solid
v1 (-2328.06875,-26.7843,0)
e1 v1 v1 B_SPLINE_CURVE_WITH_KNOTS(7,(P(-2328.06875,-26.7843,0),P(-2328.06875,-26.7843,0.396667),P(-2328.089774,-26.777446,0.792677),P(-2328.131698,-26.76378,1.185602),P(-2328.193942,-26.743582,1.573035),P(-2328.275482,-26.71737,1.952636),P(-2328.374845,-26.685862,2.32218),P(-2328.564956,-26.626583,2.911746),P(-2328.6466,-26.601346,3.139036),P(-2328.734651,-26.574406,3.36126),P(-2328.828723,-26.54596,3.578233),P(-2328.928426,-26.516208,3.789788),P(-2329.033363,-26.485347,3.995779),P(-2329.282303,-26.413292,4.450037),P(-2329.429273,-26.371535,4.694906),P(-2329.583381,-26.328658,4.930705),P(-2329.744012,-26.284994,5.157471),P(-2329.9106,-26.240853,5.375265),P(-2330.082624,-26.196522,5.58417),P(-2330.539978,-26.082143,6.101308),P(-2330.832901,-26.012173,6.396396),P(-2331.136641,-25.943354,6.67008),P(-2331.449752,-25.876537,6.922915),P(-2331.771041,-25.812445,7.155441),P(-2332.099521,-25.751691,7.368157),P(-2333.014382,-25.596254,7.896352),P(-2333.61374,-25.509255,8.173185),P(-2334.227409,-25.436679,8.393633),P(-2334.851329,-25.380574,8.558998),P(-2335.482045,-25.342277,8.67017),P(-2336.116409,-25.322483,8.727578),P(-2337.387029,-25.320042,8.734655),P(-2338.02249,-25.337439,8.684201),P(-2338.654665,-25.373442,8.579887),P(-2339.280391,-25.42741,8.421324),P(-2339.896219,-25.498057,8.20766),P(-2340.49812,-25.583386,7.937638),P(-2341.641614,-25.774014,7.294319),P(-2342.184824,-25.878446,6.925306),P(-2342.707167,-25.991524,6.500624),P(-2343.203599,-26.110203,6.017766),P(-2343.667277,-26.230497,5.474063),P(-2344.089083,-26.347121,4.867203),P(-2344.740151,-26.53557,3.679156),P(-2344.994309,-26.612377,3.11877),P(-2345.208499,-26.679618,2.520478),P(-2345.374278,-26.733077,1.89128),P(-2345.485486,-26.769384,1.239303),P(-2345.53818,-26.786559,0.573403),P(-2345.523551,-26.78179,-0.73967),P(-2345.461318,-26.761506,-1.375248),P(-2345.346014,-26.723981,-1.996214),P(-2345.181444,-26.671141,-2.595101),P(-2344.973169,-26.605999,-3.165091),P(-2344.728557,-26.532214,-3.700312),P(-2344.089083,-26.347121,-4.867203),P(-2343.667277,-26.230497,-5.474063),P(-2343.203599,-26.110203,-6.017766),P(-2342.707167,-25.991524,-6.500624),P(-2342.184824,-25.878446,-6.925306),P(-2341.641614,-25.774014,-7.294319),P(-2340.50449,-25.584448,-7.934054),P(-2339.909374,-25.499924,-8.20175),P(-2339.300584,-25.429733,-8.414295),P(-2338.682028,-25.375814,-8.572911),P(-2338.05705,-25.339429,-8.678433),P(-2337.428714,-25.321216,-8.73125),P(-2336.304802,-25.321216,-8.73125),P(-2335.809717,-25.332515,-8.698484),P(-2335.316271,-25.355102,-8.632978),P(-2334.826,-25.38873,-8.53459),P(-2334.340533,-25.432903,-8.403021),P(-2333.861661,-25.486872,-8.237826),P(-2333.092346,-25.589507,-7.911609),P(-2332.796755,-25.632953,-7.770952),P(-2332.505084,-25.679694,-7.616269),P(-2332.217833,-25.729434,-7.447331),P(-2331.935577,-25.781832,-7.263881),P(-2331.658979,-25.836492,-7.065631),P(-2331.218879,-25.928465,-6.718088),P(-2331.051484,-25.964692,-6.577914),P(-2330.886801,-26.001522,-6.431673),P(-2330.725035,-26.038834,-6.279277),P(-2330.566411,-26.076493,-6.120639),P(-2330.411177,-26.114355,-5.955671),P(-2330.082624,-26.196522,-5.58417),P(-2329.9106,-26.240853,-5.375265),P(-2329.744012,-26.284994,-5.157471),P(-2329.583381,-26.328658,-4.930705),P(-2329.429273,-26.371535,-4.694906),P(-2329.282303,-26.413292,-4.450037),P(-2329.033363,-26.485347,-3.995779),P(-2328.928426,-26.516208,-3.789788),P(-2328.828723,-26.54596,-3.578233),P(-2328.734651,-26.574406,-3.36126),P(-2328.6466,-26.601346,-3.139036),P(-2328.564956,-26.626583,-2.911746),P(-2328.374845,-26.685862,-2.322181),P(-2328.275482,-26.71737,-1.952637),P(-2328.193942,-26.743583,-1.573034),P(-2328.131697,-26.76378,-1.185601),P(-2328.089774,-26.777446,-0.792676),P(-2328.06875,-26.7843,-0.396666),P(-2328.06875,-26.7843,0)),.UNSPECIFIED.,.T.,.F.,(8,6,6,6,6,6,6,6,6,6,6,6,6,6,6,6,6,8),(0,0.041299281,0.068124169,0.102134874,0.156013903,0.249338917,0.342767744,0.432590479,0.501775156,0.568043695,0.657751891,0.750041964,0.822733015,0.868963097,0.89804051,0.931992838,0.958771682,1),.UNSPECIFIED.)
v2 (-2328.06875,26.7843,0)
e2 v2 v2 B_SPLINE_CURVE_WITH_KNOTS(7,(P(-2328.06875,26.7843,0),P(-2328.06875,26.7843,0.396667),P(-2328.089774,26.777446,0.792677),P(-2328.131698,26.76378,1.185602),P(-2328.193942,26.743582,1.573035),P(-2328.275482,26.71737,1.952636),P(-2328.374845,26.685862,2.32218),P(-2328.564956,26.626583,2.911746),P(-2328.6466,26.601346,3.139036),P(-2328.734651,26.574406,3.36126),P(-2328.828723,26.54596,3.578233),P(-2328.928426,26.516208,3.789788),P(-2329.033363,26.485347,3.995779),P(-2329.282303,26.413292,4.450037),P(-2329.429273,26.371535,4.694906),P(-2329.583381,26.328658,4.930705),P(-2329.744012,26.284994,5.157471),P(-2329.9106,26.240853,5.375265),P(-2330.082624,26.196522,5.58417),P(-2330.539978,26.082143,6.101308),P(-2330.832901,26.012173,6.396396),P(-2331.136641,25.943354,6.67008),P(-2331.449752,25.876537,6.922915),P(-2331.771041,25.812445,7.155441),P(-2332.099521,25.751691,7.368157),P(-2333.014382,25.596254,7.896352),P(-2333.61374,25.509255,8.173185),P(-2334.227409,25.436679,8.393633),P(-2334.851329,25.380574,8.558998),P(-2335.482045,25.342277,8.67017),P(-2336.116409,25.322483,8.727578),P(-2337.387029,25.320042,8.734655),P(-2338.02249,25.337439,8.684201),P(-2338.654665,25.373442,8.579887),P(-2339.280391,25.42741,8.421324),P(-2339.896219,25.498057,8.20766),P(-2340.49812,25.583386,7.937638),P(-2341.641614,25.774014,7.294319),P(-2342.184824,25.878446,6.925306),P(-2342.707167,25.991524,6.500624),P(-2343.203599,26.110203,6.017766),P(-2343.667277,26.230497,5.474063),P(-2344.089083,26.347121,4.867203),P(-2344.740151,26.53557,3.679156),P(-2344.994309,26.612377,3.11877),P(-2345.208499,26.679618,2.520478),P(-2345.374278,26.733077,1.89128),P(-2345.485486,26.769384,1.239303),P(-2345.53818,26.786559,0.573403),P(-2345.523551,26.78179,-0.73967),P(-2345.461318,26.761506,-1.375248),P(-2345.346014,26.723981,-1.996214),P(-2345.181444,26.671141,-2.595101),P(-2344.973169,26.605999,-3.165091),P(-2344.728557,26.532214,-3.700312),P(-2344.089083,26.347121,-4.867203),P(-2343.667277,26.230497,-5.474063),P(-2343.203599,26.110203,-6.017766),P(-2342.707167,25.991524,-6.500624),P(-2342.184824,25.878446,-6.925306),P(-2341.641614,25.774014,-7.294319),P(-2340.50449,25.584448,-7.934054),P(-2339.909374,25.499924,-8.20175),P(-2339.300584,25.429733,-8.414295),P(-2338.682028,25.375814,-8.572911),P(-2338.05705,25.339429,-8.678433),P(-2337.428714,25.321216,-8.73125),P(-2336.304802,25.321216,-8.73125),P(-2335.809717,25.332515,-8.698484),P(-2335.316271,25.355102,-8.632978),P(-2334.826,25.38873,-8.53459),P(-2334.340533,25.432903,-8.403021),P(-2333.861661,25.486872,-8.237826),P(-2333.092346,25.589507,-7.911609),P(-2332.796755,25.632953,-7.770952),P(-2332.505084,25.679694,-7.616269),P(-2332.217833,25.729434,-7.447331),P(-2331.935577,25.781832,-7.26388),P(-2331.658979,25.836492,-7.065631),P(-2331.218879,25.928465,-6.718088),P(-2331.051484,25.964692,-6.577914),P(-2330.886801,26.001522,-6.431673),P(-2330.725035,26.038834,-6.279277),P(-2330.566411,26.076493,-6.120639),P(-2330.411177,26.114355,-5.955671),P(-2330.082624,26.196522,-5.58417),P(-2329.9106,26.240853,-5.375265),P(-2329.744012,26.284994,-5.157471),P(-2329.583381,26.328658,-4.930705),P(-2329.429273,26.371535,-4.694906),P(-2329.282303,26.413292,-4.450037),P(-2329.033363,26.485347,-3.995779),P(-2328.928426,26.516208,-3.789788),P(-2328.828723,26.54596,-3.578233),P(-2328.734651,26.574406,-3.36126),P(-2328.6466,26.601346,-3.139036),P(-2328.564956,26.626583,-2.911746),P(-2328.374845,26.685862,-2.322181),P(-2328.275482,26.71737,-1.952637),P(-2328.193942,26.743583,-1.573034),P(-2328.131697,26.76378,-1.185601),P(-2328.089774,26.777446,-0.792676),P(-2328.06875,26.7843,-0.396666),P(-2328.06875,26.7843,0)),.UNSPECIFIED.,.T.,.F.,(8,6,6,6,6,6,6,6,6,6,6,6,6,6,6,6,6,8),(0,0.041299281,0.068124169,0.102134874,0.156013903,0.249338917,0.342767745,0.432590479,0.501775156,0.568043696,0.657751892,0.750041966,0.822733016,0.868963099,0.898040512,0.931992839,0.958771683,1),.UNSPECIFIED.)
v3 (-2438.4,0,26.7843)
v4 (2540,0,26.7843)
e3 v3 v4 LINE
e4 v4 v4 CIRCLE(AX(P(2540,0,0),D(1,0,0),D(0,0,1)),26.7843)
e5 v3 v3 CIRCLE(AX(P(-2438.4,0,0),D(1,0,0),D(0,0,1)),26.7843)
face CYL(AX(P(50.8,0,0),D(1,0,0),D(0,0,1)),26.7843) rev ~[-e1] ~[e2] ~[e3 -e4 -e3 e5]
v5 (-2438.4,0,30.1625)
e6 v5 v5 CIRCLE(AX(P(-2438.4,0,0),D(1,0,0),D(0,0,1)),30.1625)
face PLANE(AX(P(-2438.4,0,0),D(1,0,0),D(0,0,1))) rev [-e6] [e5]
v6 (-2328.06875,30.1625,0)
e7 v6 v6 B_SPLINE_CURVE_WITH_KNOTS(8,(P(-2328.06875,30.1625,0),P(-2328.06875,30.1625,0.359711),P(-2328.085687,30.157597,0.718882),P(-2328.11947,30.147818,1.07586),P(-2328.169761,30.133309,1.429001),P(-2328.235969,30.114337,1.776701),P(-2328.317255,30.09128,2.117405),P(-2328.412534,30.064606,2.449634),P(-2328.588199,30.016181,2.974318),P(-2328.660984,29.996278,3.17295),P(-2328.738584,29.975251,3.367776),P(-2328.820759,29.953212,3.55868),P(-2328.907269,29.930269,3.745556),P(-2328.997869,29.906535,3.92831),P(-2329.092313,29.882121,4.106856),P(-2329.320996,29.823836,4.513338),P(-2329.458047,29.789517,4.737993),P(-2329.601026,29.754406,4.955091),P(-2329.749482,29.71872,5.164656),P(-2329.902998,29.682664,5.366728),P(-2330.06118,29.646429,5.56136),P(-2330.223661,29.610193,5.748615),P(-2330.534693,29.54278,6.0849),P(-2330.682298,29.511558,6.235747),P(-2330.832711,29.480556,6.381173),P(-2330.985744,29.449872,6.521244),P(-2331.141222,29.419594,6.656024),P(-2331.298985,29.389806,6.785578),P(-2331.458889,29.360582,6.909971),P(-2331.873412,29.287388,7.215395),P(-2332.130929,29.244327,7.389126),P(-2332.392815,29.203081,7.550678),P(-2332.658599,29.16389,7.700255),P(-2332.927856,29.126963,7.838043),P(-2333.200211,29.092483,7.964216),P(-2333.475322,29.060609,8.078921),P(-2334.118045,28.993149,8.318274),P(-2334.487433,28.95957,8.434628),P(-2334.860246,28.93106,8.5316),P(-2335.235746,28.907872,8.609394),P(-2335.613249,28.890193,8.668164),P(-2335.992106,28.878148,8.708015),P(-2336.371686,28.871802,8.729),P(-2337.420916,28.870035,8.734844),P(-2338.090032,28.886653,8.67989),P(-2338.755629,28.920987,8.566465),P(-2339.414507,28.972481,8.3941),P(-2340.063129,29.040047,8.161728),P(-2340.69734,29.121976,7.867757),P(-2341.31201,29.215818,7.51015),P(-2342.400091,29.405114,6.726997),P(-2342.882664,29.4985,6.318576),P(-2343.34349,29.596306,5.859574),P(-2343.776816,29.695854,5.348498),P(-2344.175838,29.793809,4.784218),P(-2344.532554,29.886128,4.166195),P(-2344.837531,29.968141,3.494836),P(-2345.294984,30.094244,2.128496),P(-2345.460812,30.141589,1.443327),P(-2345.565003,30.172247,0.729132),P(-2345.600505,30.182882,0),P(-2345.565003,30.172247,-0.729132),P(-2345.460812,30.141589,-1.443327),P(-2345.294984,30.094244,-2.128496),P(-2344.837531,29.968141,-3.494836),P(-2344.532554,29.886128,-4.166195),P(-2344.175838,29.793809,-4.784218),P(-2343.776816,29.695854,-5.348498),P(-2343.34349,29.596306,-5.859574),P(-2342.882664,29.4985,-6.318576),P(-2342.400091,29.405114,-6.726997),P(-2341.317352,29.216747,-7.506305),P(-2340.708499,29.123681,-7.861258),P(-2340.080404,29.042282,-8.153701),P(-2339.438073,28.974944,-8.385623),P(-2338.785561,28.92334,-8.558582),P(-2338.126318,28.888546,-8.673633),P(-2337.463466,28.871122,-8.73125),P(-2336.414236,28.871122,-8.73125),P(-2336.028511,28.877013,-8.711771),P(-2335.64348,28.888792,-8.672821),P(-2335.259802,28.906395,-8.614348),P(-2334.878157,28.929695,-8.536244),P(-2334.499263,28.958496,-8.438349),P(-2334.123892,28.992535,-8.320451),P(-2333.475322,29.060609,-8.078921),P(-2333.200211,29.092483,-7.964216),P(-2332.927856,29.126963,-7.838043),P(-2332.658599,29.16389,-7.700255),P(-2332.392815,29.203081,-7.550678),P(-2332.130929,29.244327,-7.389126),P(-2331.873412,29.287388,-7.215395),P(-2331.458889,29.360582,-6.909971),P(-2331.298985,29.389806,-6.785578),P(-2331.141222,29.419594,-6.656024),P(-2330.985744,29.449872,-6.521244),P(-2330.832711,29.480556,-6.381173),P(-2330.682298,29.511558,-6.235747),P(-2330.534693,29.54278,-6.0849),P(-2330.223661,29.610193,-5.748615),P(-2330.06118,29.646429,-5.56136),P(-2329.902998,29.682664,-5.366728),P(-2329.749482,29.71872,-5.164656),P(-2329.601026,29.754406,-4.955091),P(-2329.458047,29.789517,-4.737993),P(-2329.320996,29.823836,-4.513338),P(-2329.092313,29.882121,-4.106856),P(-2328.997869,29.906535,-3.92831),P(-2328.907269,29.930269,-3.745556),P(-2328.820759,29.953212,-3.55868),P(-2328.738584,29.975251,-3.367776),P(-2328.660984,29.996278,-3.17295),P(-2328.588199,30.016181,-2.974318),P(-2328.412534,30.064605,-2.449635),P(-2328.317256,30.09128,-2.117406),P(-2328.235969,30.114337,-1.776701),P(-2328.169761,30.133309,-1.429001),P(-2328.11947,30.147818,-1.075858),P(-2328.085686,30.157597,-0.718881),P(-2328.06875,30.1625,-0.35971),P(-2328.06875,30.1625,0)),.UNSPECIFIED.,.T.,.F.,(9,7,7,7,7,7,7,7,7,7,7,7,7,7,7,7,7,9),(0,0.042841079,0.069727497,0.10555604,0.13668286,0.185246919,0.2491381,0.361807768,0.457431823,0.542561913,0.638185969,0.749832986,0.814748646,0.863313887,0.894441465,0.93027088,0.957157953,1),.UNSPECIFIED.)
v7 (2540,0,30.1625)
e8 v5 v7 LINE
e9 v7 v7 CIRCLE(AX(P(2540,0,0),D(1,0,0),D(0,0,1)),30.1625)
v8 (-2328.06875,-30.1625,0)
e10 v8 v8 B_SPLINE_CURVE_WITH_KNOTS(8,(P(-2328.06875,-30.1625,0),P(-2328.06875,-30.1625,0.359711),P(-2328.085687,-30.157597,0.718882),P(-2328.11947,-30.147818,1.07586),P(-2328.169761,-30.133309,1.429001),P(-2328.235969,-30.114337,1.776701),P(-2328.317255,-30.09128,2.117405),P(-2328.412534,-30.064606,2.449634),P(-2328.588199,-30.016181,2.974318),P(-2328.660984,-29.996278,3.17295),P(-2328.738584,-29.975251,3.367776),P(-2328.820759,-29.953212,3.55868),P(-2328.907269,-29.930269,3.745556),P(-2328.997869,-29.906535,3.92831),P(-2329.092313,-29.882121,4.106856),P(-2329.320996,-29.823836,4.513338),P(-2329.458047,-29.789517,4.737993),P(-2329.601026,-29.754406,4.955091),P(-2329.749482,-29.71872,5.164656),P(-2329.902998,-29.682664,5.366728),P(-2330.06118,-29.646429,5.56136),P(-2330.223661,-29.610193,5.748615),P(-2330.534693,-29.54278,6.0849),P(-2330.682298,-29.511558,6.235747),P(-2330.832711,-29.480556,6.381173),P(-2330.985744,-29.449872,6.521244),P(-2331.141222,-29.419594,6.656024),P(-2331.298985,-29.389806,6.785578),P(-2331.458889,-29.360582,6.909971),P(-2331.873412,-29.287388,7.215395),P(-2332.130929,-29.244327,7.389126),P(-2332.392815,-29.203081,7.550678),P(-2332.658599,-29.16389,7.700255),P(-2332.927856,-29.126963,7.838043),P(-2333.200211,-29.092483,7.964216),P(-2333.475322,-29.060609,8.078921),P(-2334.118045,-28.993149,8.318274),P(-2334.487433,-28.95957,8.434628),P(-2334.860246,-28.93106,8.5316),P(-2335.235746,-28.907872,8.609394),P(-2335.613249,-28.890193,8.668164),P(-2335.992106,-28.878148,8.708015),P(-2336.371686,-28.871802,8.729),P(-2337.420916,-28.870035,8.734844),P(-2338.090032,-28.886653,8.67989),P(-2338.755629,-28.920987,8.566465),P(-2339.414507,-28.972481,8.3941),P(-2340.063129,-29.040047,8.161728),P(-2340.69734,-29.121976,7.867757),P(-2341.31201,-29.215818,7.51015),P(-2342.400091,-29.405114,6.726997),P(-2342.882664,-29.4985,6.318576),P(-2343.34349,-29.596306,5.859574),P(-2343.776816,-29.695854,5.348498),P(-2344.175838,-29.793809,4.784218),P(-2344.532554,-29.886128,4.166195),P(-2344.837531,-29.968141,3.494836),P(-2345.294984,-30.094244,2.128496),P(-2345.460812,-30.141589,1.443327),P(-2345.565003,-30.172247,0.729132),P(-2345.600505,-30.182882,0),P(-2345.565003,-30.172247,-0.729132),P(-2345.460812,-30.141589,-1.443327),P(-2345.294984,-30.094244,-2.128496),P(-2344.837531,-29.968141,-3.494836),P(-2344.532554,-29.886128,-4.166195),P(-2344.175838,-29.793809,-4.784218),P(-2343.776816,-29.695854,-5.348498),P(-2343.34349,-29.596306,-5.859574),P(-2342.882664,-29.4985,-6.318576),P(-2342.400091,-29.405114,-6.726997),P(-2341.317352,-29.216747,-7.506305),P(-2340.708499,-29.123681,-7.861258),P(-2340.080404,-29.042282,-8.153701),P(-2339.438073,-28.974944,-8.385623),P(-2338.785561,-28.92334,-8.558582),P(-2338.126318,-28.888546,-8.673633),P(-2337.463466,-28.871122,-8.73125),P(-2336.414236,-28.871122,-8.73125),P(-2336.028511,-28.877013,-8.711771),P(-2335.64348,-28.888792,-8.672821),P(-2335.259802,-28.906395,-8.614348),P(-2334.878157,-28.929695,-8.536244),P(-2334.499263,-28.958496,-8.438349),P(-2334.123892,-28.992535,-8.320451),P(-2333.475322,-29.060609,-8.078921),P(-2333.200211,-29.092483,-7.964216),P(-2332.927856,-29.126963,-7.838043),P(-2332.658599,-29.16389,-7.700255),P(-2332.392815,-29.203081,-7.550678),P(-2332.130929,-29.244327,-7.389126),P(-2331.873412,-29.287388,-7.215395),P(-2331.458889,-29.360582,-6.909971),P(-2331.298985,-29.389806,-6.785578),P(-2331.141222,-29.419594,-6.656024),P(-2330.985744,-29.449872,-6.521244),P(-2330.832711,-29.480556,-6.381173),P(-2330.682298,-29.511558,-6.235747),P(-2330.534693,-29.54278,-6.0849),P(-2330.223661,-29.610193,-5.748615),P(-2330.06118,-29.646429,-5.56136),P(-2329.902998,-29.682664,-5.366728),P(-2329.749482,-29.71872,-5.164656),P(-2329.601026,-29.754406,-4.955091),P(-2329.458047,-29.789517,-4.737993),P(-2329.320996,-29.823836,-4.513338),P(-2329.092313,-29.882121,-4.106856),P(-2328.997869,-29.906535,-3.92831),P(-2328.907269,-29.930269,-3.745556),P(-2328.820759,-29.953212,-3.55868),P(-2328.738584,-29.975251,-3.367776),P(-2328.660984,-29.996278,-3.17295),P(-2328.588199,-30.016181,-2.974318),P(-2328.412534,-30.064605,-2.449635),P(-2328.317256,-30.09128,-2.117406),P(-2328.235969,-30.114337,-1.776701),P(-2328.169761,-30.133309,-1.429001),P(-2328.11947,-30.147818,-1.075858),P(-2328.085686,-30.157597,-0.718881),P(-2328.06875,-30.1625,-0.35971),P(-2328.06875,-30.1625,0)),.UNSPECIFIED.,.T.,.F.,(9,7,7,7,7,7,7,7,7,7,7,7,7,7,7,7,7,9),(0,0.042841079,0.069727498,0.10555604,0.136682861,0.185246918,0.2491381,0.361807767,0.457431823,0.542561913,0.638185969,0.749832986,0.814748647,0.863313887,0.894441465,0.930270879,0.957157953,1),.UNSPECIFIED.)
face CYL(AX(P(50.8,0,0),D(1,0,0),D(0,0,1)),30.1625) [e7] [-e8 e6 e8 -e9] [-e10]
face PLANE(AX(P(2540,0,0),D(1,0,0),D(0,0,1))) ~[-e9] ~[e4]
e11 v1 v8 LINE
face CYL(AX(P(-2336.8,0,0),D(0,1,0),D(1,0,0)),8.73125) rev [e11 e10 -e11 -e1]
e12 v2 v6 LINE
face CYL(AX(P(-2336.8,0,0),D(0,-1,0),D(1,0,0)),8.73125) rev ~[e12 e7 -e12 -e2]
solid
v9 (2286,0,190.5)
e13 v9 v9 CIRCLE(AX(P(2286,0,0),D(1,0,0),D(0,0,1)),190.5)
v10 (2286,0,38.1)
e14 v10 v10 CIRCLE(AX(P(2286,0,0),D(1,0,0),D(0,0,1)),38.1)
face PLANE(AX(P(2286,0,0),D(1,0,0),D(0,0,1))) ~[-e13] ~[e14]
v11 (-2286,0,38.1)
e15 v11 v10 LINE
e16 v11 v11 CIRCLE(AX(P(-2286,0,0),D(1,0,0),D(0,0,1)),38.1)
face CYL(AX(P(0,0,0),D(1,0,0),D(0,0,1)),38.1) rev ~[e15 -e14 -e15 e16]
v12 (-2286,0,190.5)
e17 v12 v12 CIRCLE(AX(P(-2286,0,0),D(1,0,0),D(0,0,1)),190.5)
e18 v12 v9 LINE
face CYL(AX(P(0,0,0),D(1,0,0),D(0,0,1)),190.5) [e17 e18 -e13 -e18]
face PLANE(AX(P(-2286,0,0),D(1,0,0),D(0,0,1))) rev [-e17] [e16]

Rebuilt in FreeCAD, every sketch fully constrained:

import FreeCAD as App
import Part
import Sketcher
Q = App.Units.Quantity


def add_polygon(sketch, points):
    """Adds a closed chain of lines whose ends are joined by coincident constraints."""
    first, n = sketch.GeometryCount, len(points)
    for a, b in zip(points, points[1:] + points[:1]):
        sketch.addGeometry(Part.LineSegment(App.Vector(*a, 0), App.Vector(*b, 0)), False)
    for i in range(n):
        sketch.addConstraint(Sketcher.Constraint("Coincident", first + i, 2, first + (i + 1) % n, 1))

doc = App.newDocument("Part")
params = doc.addObject("Spreadsheet::Sheet", "Params")
for row, (alias, value) in enumerate([
    ("sketch1_width", "180 in"),
    ("sketch1_height", "6 in"),
    ("revolution_angle", "360 deg"),
    ("sketch2_width", "196 in"),
    ("sketch2_height", "0.133 in"),
    ("revolution2_angle", "360 deg"),
    ("sketch3_diameter", "0.6875 in"),
], start=1):
    params.set(f"A{row}", alias)
    params.set(f"B{row}", "=" + value)
    params.setAlias(f"B{row}", alias)

body = doc.addObject("PartDesign::Body", "Body")

sketch1 = body.newObject("Sketcher::SketchObject", "Sketch")
sketch1.AttachmentSupport = (doc.getObject("XZ_Plane"), [""])
sketch1.MapMode = "FlatFace"
add_polygon(sketch1, [(-2286, 190), (-2286, 38), (2286, 38), (2286, 190)])
sketch1.addConstraint([
    Sketcher.Constraint("Vertical", 0),
    Sketcher.Constraint("Horizontal", 1),
    Sketcher.Constraint("Vertical", 2),
    Sketcher.Constraint("Horizontal", 3),
    Sketcher.Constraint("DistanceX", 1, 1, 1, 2, Q("180 in")),
    Sketcher.Constraint("DistanceY", 0, 2, 0, 1, Q("6 in")),
    Sketcher.Constraint("DistanceX", 0, 2, -1, 1, Q("90 in")),
    Sketcher.Constraint("DistanceY", -1, 1, 0, 2, Q("1.5 in")),
])
sketch1.setExpression("Constraints[8]", "Params.sketch1_width")
sketch1.setExpression("Constraints[9]", "Params.sketch1_height")
revolution = body.newObject("PartDesign::Revolution", "Revolution")
revolution.Profile = sketch1
revolution.ReferenceAxis = (sketch1, ["H_Axis"])
revolution.setExpression("Angle", "Params.revolution_angle")
body2 = doc.addObject("PartDesign::Body", "Body001")

sketch2 = body2.newObject("Sketcher::SketchObject", "Sketch001")
sketch2.AttachmentSupport = (doc.getObject("XZ_Plane001"), [""])
sketch2.MapMode = "FlatFace"
add_polygon(sketch2, [(-2438.4, 30.2), (-2438.4, 26.8), (2540, 26.8), (2540, 30.2)])
sketch2.addConstraint([
    Sketcher.Constraint("Vertical", 0),
    Sketcher.Constraint("Horizontal", 1),
    Sketcher.Constraint("Vertical", 2),
    Sketcher.Constraint("Horizontal", 3),
    Sketcher.Constraint("DistanceX", 1, 1, 1, 2, Q("196 in")),
    Sketcher.Constraint("DistanceX", 0, 2, -1, 1, Q("96 in")),
    Sketcher.Constraint("DistanceY", 0, 2, 0, 1, Q("0.133 in")),
    Sketcher.Constraint("DistanceY", -1, 1, 2, 2, Q("1.1875 in")),
])
sketch2.setExpression("Constraints[8]", "Params.sketch2_width")
sketch2.setExpression("Constraints[10]", "Params.sketch2_height")
revolution2 = body2.newObject("PartDesign::Revolution", "Revolution001")
revolution2.Profile = sketch2
revolution2.ReferenceAxis = (sketch2, ["H_Axis"])
revolution2.setExpression("Angle", "Params.revolution2_angle")

sketch3 = body2.newObject("Sketcher::SketchObject", "Sketch002")
sketch3.AttachmentSupport = (doc.getObject("XZ_Plane001"), [""])
sketch3.MapMode = "FlatFace"
sketch3.addGeometry(Part.Circle(App.Vector(-2337, 0, 0), App.Vector(0, 0, 1), 9), False)
sketch3.addConstraint([
    Sketcher.Constraint("PointOnObject", 0, 3, -1),
    Sketcher.Constraint("Diameter", 0, Q("0.6875 in")),
    Sketcher.Constraint("DistanceX", 0, 3, -1, 1, Q("92 in")),
])
sketch3.setExpression("Constraints[1]", "Params.sketch3_diameter")
pocket1 = body2.newObject("PartDesign::Pocket", "Pocket")
pocket1.Profile = sketch3
pocket1.Type = "ThroughAll"
pocket1.Midplane = True

doc.recompute()
